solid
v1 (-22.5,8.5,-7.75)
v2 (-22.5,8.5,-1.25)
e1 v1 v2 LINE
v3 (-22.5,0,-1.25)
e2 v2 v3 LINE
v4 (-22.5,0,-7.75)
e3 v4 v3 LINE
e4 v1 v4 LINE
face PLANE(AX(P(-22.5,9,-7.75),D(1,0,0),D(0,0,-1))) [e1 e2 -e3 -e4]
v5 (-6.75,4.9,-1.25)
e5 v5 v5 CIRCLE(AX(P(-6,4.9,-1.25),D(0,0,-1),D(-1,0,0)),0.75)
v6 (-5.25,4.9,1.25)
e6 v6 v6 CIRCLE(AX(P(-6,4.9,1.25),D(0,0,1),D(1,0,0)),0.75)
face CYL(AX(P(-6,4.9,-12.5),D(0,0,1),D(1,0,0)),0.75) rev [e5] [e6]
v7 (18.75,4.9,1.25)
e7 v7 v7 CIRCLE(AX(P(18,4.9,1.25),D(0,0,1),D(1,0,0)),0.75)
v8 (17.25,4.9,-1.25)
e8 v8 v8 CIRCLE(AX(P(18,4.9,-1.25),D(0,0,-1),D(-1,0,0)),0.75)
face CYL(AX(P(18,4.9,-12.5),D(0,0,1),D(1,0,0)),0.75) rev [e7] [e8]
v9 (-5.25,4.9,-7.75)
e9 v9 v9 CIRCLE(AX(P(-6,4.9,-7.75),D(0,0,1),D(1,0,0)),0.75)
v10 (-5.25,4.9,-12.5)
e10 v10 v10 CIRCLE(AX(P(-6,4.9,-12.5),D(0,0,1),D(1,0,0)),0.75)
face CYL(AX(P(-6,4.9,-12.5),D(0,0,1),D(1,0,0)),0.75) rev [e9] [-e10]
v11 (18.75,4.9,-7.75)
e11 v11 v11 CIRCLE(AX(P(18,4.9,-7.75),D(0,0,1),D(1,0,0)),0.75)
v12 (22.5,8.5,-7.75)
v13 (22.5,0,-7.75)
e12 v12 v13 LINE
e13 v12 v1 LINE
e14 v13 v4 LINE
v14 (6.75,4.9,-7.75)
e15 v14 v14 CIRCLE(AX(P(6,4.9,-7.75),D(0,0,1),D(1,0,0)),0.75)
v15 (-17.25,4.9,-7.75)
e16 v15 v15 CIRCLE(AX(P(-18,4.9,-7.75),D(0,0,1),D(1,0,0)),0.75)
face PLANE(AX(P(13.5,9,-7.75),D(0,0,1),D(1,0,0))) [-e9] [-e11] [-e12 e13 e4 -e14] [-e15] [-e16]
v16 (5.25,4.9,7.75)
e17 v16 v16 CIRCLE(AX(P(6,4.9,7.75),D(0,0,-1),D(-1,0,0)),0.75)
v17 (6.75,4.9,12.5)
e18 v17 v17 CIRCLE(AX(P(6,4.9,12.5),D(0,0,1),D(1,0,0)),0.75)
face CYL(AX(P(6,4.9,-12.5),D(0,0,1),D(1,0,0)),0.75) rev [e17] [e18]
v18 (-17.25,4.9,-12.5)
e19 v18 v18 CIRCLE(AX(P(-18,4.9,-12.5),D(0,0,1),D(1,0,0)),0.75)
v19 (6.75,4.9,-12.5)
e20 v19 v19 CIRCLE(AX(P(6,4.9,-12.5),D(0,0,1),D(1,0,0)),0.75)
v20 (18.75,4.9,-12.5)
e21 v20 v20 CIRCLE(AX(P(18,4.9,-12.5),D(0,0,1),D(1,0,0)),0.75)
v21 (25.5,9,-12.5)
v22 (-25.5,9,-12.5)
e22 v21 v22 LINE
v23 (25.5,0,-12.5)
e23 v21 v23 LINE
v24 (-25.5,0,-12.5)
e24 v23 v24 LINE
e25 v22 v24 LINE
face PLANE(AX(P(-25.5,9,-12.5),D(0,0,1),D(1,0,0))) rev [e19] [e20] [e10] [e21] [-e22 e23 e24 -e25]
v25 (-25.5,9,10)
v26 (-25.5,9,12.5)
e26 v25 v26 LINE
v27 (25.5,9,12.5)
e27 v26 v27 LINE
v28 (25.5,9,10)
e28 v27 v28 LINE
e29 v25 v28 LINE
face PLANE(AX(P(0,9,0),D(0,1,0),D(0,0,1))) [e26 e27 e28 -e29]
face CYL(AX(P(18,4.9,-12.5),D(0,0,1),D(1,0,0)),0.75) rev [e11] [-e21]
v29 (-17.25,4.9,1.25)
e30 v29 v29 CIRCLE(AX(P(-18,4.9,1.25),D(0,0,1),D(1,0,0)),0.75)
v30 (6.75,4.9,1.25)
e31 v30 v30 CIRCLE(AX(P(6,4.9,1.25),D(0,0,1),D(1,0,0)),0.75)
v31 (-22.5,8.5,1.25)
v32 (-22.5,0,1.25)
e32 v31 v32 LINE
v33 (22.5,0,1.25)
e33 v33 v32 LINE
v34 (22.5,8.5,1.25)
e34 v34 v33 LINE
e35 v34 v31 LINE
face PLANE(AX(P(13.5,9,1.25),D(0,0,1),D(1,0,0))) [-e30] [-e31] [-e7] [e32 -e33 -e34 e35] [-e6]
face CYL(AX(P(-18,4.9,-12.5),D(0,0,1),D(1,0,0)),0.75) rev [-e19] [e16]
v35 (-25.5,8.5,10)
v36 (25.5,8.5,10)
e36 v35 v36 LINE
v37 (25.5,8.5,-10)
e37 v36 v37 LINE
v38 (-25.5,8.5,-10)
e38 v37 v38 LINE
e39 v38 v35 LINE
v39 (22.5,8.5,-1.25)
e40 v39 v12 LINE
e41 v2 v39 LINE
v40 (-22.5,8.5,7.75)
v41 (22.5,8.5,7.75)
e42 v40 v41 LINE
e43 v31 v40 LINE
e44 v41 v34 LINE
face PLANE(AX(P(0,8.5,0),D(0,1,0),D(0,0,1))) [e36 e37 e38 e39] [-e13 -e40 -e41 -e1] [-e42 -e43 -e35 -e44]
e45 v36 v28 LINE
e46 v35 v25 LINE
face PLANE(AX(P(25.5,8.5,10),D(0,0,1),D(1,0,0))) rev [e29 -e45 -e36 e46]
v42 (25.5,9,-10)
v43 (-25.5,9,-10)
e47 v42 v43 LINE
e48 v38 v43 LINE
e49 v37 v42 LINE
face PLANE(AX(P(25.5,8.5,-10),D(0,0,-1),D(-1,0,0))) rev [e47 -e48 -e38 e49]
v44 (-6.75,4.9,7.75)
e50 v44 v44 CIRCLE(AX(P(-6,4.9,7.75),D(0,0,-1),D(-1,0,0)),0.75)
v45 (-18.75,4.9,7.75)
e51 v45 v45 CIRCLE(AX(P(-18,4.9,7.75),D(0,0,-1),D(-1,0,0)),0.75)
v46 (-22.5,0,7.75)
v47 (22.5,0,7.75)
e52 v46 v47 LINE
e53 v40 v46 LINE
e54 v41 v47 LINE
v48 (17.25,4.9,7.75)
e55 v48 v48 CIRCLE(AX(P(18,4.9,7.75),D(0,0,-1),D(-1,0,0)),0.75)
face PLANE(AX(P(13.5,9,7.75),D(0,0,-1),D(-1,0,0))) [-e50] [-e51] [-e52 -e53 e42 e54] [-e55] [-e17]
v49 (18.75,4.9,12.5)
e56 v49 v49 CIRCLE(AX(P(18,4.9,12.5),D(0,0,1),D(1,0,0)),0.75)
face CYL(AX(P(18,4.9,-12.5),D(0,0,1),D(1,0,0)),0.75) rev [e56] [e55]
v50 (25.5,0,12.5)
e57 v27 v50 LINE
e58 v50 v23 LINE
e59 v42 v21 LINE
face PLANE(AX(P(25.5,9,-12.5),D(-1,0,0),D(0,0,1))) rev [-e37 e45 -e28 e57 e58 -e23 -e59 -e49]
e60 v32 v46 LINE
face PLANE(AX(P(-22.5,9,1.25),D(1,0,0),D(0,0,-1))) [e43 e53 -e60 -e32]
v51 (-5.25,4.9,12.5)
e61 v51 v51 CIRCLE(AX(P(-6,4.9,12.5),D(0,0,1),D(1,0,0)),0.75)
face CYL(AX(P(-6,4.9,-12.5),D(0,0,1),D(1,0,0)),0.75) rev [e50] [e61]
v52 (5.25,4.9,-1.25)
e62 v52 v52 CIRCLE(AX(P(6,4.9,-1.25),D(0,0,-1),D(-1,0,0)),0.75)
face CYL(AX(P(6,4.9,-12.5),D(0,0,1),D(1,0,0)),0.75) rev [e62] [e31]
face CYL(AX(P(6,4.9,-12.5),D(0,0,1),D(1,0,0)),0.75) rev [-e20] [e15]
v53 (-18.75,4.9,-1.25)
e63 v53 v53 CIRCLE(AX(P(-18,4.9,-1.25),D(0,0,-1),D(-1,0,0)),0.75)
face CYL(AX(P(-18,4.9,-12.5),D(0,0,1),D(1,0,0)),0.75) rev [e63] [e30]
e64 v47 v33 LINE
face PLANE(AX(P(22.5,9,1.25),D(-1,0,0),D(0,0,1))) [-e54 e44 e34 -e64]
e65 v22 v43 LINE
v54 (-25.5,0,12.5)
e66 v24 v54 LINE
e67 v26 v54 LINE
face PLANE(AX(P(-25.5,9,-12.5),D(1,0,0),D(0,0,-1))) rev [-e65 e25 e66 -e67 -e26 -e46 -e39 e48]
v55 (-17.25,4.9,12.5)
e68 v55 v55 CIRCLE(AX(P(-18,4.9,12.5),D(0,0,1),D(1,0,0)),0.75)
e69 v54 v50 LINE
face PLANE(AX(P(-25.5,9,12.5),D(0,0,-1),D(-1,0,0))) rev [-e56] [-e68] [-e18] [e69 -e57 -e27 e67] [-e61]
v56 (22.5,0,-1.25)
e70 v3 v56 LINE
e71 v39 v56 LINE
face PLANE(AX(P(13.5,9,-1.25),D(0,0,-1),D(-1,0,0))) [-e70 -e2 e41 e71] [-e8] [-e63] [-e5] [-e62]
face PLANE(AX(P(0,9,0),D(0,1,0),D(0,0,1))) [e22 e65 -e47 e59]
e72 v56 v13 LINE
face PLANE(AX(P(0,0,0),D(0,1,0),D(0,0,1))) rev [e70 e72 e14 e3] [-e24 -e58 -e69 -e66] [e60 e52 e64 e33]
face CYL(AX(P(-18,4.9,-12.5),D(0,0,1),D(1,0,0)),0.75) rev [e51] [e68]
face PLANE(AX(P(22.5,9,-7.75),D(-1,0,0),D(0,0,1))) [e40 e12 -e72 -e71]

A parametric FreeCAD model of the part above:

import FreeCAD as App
import Part
import Sketcher
from FreeCAD import Vector
Q = App.Units.Quantity

doc = App.newDocument("Part")
body = doc.addObject("PartDesign::Body", "Body")

sketch1 = doc.addObject("Sketcher::SketchObject", "Sketch")
body.addObject(sketch1)
sketch1.AttachmentSupport = (doc.XZ_Plane, [""])
sketch1.MapMode = "FlatFace"
sketch1.addGeometry([
    Part.LineSegment(Vector(-25.5, -12.5, 0), Vector(-25.5, 12.5, 0)),
    Part.LineSegment(Vector(-25.5, 12.5, 0), Vector(25.5, 12.5, 0)),
    Part.LineSegment(Vector(25.5, 12.5, 0), Vector(25.5, -12.5, 0)),
    Part.LineSegment(Vector(25.5, -12.5, 0), Vector(-25.5, -12.5, 0)),
    Part.LineSegment(Vector(-13.5, 7.75, 0), Vector(-22.5, 7.75, 0)),
    Part.LineSegment(Vector(-22.5, 7.75, 0), Vector(-22.5, 1.25, 0)),
    Part.LineSegment(Vector(-22.5, 1.25, 0), Vector(-13.5, 1.25, 0)),
    Part.LineSegment(Vector(-13.5, 1.25, 0), Vector(-13.5, 7.75, 0)),
    Part.LineSegment(Vector(-1.5, 7.75, 0), Vector(-10.5, 7.75, 0)),
    Part.LineSegment(Vector(-10.5, 7.75, 0), Vector(-10.5, 1.25, 0)),
    Part.LineSegment(Vector(-10.5, 1.25, 0), Vector(-1.5, 1.25, 0)),
    Part.LineSegment(Vector(-1.5, 1.25, 0), Vector(-1.5, 7.75, 0)),
    Part.LineSegment(Vector(10.5, 7.75, 0), Vector(1.5, 7.75, 0)),
    Part.LineSegment(Vector(1.5, 7.75, 0), Vector(1.5, 1.25, 0)),
    Part.LineSegment(Vector(1.5, 1.25, 0), Vector(10.5, 1.25, 0)),
    Part.LineSegment(Vector(10.5, 1.25, 0), Vector(10.5, 7.75, 0)),
    Part.LineSegment(Vector(22.5, 7.75, 0), Vector(13.5, 7.75, 0)),
    Part.LineSegment(Vector(13.5, 7.75, 0), Vector(13.5, 1.25, 0)),
    Part.LineSegment(Vector(13.5, 1.25, 0), Vector(22.5, 1.25, 0)),
    Part.LineSegment(Vector(22.5, 1.25, 0), Vector(22.5, 7.75, 0)),
    Part.LineSegment(Vector(-13.5, -1.25, 0), Vector(-22.5, -1.25, 0)),
    Part.LineSegment(Vector(-22.5, -1.25, 0), Vector(-22.5, -7.75, 0)),
    Part.LineSegment(Vector(-22.5, -7.75, 0), Vector(-13.5, -7.75, 0)),
    Part.LineSegment(Vector(-13.5, -7.75, 0), Vector(-13.5, -1.25, 0)),
    Part.LineSegment(Vector(-1.5, -1.25, 0), Vector(-10.5, -1.25, 0)),
    Part.LineSegment(Vector(-10.5, -1.25, 0), Vector(-10.5, -7.75, 0)),
    Part.LineSegment(Vector(-10.5, -7.75, 0), Vector(-1.5, -7.75, 0)),
    Part.LineSegment(Vector(-1.5, -7.75, 0), Vector(-1.5, -1.25, 0)),
    Part.LineSegment(Vector(10.5, -1.25, 0), Vector(1.5, -1.25, 0)),
    Part.LineSegment(Vector(1.5, -1.25, 0), Vector(1.5, -7.75, 0)),
    Part.LineSegment(Vector(1.5, -7.75, 0), Vector(10.5, -7.75, 0)),
    Part.LineSegment(Vector(10.5, -7.75, 0), Vector(10.5, -1.25, 0)),
    Part.LineSegment(Vector(22.5, -1.25, 0), Vector(13.5, -1.25, 0)),
    Part.LineSegment(Vector(13.5, -1.25, 0), Vector(13.5, -7.75, 0)),
    Part.LineSegment(Vector(13.5, -7.75, 0), Vector(22.5, -7.75, 0)),
    Part.LineSegment(Vector(22.5, -7.75, 0), Vector(22.5, -1.25, 0)),
], False)
sketch1.addConstraint([
    Sketcher.Constraint("Coincident", 0, 2, 1, 1),
    Sketcher.Constraint("Coincident", 1, 2, 2, 1),
    Sketcher.Constraint("Coincident", 2, 2, 3, 1),
    Sketcher.Constraint("Coincident", 3, 2, 0, 1),
    Sketcher.Constraint("Coincident", 4, 2, 5, 1),
    Sketcher.Constraint("Coincident", 5, 2, 6, 1),
    Sketcher.Constraint("Coincident", 6, 2, 7, 1),
    Sketcher.Constraint("Coincident", 7, 2, 4, 1),
    Sketcher.Constraint("Coincident", 8, 2, 9, 1),
    Sketcher.Constraint("Coincident", 9, 2, 10, 1),
    Sketcher.Constraint("Coincident", 10, 2, 11, 1),
    Sketcher.Constraint("Coincident", 11, 2, 8, 1),
    Sketcher.Constraint("Coincident", 12, 2, 13, 1),
    Sketcher.Constraint("Coincident", 13, 2, 14, 1),
    Sketcher.Constraint("Coincident", 14, 2, 15, 1),
    Sketcher.Constraint("Coincident", 15, 2, 12, 1),
    Sketcher.Constraint("Coincident", 16, 2, 17, 1),
    Sketcher.Constraint("Coincident", 17, 2, 18, 1),
    Sketcher.Constraint("Coincident", 18, 2, 19, 1),
    Sketcher.Constraint("Coincident", 19, 2, 16, 1),
    Sketcher.Constraint("Coincident", 20, 2, 21, 1),
    Sketcher.Constraint("Coincident", 21, 2, 22, 1),
    Sketcher.Constraint("Coincident", 22, 2, 23, 1),
    Sketcher.Constraint("Coincident", 23, 2, 20, 1),
    Sketcher.Constraint("Coincident", 24, 2, 25, 1),
    Sketcher.Constraint("Coincident", 25, 2, 26, 1),
    Sketcher.Constraint("Coincident", 26, 2, 27, 1),
    Sketcher.Constraint("Coincident", 27, 2, 24, 1),
    Sketcher.Constraint("Coincident", 28, 2, 29, 1),
    Sketcher.Constraint("Coincident", 29, 2, 30, 1),
    Sketcher.Constraint("Coincident", 30, 2, 31, 1),
    Sketcher.Constraint("Coincident", 31, 2, 28, 1),
    Sketcher.Constraint("Coincident", 32, 2, 33, 1),
    Sketcher.Constraint("Coincident", 33, 2, 34, 1),
    Sketcher.Constraint("Coincident", 34, 2, 35, 1),
    Sketcher.Constraint("Coincident", 35, 2, 32, 1),
    Sketcher.Constraint("Vertical", 0),
    Sketcher.Constraint("Horizontal", 1),
    Sketcher.Constraint("Vertical", 2),
    Sketcher.Constraint("Horizontal", 3),
    Sketcher.Constraint("Horizontal", 4),
    Sketcher.Constraint("Vertical", 5),
    Sketcher.Constraint("Horizontal", 6),
    Sketcher.Constraint("Vertical", 7),
    Sketcher.Constraint("Horizontal", 8),
    Sketcher.Constraint("Vertical", 9),
    Sketcher.Constraint("Horizontal", 10),
    Sketcher.Constraint("Vertical", 11),
    Sketcher.Constraint("Horizontal", 12),
    Sketcher.Constraint("Vertical", 13),
    Sketcher.Constraint("Horizontal", 14),
    Sketcher.Constraint("Vertical", 15),
    Sketcher.Constraint("Horizontal", 16),
    Sketcher.Constraint("Vertical", 17),
    Sketcher.Constraint("Horizontal", 18),
    Sketcher.Constraint("Vertical", 19),
    Sketcher.Constraint("Horizontal", 20),
    Sketcher.Constraint("Vertical", 21),
    Sketcher.Constraint("Horizontal", 22),
    Sketcher.Constraint("Vertical", 23),
    Sketcher.Constraint("Horizontal", 24),
    Sketcher.Constraint("Vertical", 25),
    Sketcher.Constraint("Horizontal", 26),
    Sketcher.Constraint("Vertical", 27),
    Sketcher.Constraint("Horizontal", 28),
    Sketcher.Constraint("Vertical", 29),
    Sketcher.Constraint("Horizontal", 30),
    Sketcher.Constraint("Vertical", 31),
    Sketcher.Constraint("Horizontal", 32),
    Sketcher.Constraint("Vertical", 33),
    Sketcher.Constraint("Horizontal", 34),
    Sketcher.Constraint("Vertical", 35),
    Sketcher.Constraint("Symmetric", 0, 2, 2, 2, -1, 1),
    Sketcher.Constraint("Symmetric", 18, 2, 20, 2, -1, 1),
    Sketcher.Constraint("Symmetric", 16, 2, 22, 2, -1, 1),
    Sketcher.Constraint("Symmetric", 14, 2, 24, 2, -1, 1),
    Sketcher.Constraint("Symmetric", 12, 2, 26, 2, -1, 1),
    Sketcher.Constraint("Symmetric", 10, 2, 28, 2, -1, 1),
    Sketcher.Constraint("Symmetric", 8, 2, 30, 2, -1, 1),
    Sketcher.Constraint("Symmetric", 6, 2, 32, 2, -1, 1),
    Sketcher.Constraint("Symmetric", 4, 2, 34, 2, -1, 1),
    Sketcher.Constraint("Symmetric", 11, 2, 12, 2, -2),
    Sketcher.Constraint("Symmetric", 9, 2, 14, 2, -2),
    Sketcher.Constraint("Symmetric", 7, 2, 16, 2, -2),
    Sketcher.Constraint("Symmetric", 5, 2, 18, 2, -2),
    Sketcher.Constraint("Horizontal", 7, 2, 8, 2),
    Sketcher.Constraint("Horizontal", 6, 2, 9, 2),
    Sketcher.Constraint("Equal", 6, 8),
    Sketcher.Constraint("DistanceX", 1, 1, 1, 2, Q("51 mm")),
    Sketcher.Constraint("DistanceX", 4, 2, 4, 1, Q("9 mm")),
    Sketcher.Constraint("DistanceY", 0, 1, 0, 2, Q("25 mm")),
    Sketcher.Constraint("DistanceY", 5, 2, 5, 1, Q("6.5 mm")),
    Sketcher.Constraint("DistanceX", 0, 2, 4, 2, Q("3 mm")),
    Sketcher.Constraint("DistanceX", 7, 2, 8, 2, Q("3 mm")),
    Sketcher.Constraint("DistanceY", 20, 2, 4, 2, Q("9 mm")),
])
pad1 = doc.addObject("PartDesign::Pad", "Pad")
body.addObject(pad1)
pad1.Profile = sketch1
pad1.Length = 9
pad1.Reversed = True

sketch2 = doc.addObject("Sketcher::SketchObject", "Sketch001")
body.addObject(sketch2)
sketch2.AttachmentSupport = (doc.XZ_Plane, [""])
sketch2.MapMode = "FlatFace"
sketch2.AttachmentOffset = App.Placement(Vector(0, 0, -9), App.Rotation())
sketch2.addGeometry([
    Part.LineSegment(Vector(-25.5, -10, 0), Vector(-25.5, 10, 0)),
    Part.LineSegment(Vector(-25.5, 10, 0), Vector(25.5, 10, 0)),
    Part.LineSegment(Vector(25.5, 10, 0), Vector(25.5, -10, 0)),
    Part.LineSegment(Vector(25.5, -10, 0), Vector(-25.5, -10, 0)),
], False)
sketch2.addConstraint([
    Sketcher.Constraint("Coincident", 0, 2, 1, 1),
    Sketcher.Constraint("Coincident", 1, 2, 2, 1),
    Sketcher.Constraint("Coincident", 2, 2, 3, 1),
    Sketcher.Constraint("Coincident", 3, 2, 0, 1),
    Sketcher.Constraint("Vertical", 0),
    Sketcher.Constraint("Horizontal", 1),
    Sketcher.Constraint("Vertical", 2),
    Sketcher.Constraint("Horizontal", 3),
    Sketcher.Constraint("Symmetric", 0, 2, 2, 2, -1, 1),
    Sketcher.Constraint("DistanceX", 1, 1, 1, 2, Q("51 mm")),
    Sketcher.Constraint("DistanceY", 0, 1, 0, 2, Q("20 mm")),
])
pocket1 = doc.addObject("PartDesign::Pocket", "Pocket")
body.addObject(pocket1)
pocket1.Profile = sketch2
pocket1.Length = 0.5
pocket1.Reversed = True

sketch3 = doc.addObject("Sketcher::SketchObject", "Sketch002")
body.addObject(sketch3)
sketch3.AttachmentSupport = (doc.XY_Plane, [""])
sketch3.MapMode = "FlatFace"
sketch3.AttachmentOffset = App.Placement(Vector(0, 0, 1.25), App.Rotation())
sketch3.addGeometry(Part.Circle(Vector(-18, 4.9, 0), Vector(0, 0, 1), 0.75), False)
sketch3.addConstraint([
    Sketcher.Constraint("Diameter", 0, Q("1.5 mm")),
    Sketcher.Constraint("DistanceX", 0, 3, -1, 1, Q("18 mm")),
    Sketcher.Constraint("DistanceY", -1, 1, 0, 3, Q("4.9 mm")),
])
pocket2 = doc.addObject("PartDesign::Pocket", "Pocket001")
body.addObject(pocket2)
pocket2.Profile = sketch3
pocket2.Length = 62.673305
pocket2.Midplane = True
doc.recompute()

linearpattern = doc.addObject("PartDesign::LinearPattern", "LinearPattern")
body.addObject(linearpattern)
linearpattern.Originals = [pocket2]
linearpattern.Direction = (doc.X_Axis, [""])
linearpattern.Mode = "offset"
linearpattern.Offset = 12
linearpattern.Occurrences = 4
body.Tip = linearpattern

sketch4 = doc.addObject("Sketcher::SketchObject", "Sketch003")
body.addObject(sketch4)
sketch4.AttachmentSupport = (doc.XZ_Plane, [""])
sketch4.MapMode = "FlatFace"
sketch4.AttachmentOffset = App.Placement(Vector(0, 0, -8.5), App.Rotation())
sketch4.addGeometry([
    Part.LineSegment(Vector(-22.5, -7.75, 0), Vector(-22.5, -1.25, 0)),
    Part.LineSegment(Vector(-22.5, -1.25, 0), Vector(22.5, -1.25, 0)),
    Part.LineSegment(Vector(22.5, -1.25, 0), Vector(22.5, -7.75, 0)),
    Part.LineSegment(Vector(22.5, -7.75, 0), Vector(-22.5, -7.75, 0)),
    Part.LineSegment(Vector(-22.5, 1.25, 0), Vector(-22.5, 7.75, 0)),
    Part.LineSegment(Vector(-22.5, 7.75, 0), Vector(22.5, 7.75, 0)),
    Part.LineSegment(Vector(22.5, 7.75, 0), Vector(22.5, 1.25, 0)),
    Part.LineSegment(Vector(22.5, 1.25, 0), Vector(-22.5, 1.25, 0)),
], False)
sketch4.addConstraint([
    Sketcher.Constraint("Coincident", 0, 2, 1, 1),
    Sketcher.Constraint("Coincident", 1, 2, 2, 1),
    Sketcher.Constraint("Coincident", 2, 2, 3, 1),
    Sketcher.Constraint("Coincident", 3, 2, 0, 1),
    Sketcher.Constraint("Coincident", 4, 2, 5, 1),
    Sketcher.Constraint("Coincident", 5, 2, 6, 1),
    Sketcher.Constraint("Coincident", 6, 2, 7, 1),
    Sketcher.Constraint("Coincident", 7, 2, 4, 1),
    Sketcher.Constraint("Vertical", 0),
    Sketcher.Constraint("Horizontal", 1),
    Sketcher.Constraint("Vertical", 2),
    Sketcher.Constraint("Horizontal", 3),
    Sketcher.Constraint("Vertical", 4),
    Sketcher.Constraint("Horizontal", 5),
    Sketcher.Constraint("Vertical", 6),
    Sketcher.Constraint("Horizontal", 7),
    Sketcher.Constraint("Symmetric", 2, 2, 4, 2, -1, 1),
    Sketcher.Constraint("Symmetric", 0, 2, 6, 2, -1, 1),
    Sketcher.Constraint("Vertical", 3, 2, 4, 2),
    Sketcher.Constraint("DistanceX", 1, 1, 1, 2, Q("45 mm")),
    Sketcher.Constraint("DistanceY", 0, 1, 0, 2, Q("6.5 mm")),
    Sketcher.Constraint("DistanceY", 0, 2, 4, 2, Q("9 mm")),
])
pocket3 = doc.addObject("PartDesign::Pocket", "Pocket002")
body.addObject(pocket3)
pocket3.Profile = sketch4
pocket3.Type = "ThroughAll"
pocket3.Reversed = True

doc.recompute()
